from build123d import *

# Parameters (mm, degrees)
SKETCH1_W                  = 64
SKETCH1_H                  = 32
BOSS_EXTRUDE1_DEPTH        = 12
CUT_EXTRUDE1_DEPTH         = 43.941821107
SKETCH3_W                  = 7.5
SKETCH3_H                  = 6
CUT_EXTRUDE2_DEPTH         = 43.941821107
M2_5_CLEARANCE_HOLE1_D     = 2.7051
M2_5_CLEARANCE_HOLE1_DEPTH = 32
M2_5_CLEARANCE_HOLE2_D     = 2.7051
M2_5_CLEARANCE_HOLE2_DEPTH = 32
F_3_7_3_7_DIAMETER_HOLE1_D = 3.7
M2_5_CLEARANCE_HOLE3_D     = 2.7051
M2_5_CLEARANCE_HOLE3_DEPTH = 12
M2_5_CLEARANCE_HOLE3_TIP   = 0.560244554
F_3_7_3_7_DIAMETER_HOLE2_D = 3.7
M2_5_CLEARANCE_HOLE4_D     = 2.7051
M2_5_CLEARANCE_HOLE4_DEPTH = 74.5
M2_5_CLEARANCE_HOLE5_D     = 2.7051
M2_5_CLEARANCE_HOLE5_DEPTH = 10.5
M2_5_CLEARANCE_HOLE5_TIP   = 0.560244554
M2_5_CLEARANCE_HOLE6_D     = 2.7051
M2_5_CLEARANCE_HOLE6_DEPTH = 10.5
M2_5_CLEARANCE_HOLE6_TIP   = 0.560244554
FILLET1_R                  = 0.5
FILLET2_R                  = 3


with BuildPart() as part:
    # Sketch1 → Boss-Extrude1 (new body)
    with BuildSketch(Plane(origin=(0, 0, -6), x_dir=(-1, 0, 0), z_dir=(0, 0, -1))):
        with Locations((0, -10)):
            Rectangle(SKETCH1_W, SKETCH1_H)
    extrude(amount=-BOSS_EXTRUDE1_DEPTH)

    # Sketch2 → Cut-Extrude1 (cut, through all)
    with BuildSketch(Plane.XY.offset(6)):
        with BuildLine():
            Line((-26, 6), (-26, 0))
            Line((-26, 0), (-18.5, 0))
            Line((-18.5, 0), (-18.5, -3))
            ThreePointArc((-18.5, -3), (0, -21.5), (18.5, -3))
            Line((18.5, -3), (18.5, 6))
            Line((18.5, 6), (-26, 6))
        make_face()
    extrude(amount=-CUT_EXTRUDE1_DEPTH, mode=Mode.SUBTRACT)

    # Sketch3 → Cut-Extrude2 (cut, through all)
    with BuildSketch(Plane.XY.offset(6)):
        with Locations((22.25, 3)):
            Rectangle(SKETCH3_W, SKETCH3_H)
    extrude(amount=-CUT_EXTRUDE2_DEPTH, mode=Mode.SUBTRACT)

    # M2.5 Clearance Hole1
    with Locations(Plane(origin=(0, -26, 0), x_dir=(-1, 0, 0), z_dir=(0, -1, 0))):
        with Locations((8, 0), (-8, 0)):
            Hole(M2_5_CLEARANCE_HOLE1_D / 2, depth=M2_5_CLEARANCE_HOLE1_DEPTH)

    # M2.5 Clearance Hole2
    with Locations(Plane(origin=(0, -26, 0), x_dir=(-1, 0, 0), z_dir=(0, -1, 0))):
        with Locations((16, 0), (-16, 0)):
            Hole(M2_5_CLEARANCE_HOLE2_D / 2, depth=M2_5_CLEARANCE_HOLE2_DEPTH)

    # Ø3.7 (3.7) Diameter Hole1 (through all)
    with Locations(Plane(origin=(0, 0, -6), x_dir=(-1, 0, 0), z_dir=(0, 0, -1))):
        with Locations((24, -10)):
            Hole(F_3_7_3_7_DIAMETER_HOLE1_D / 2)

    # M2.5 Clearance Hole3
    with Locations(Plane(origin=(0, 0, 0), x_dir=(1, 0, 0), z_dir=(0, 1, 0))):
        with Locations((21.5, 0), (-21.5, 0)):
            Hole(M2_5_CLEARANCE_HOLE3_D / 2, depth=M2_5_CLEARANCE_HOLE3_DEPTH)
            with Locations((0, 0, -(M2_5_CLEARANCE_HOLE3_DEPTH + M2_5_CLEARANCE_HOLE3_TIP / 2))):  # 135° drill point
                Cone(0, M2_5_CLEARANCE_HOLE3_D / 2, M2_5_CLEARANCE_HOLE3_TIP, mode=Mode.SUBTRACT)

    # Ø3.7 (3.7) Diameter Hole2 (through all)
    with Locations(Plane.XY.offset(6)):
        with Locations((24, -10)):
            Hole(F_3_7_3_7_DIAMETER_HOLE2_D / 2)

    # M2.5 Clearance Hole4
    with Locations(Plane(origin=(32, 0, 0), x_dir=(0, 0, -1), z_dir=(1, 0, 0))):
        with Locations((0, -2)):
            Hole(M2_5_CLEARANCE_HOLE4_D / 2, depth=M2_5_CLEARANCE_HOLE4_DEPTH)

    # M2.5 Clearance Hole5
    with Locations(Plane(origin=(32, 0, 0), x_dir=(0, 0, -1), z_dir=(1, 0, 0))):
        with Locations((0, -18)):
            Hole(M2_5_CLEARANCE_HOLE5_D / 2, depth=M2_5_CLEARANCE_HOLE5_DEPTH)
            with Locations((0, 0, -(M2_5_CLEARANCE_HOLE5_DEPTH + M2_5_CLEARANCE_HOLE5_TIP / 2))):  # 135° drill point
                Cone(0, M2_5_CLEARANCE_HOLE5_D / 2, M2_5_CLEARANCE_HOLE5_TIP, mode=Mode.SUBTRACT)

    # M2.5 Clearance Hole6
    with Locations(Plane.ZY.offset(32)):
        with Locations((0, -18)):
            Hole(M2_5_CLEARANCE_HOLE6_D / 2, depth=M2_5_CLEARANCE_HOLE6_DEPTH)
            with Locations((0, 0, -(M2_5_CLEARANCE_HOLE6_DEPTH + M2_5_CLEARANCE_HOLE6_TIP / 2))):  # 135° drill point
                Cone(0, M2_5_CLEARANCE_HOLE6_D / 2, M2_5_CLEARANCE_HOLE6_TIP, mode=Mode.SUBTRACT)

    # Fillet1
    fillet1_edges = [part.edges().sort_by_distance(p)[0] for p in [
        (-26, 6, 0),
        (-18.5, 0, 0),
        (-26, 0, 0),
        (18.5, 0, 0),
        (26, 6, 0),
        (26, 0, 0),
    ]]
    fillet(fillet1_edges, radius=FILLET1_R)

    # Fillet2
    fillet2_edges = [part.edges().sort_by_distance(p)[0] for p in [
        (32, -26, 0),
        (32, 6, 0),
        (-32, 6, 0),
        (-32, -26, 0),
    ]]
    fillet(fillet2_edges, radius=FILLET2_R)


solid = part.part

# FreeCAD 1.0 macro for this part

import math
import FreeCAD as App
import Part
import Sketcher
from FreeCAD import Vector


def edges_at(feature, points):
    """Names of the edges that pass closest to the given points."""
    edges = feature.Shape.Edges
    near = lambda p: min(range(len(edges)), key=lambda i: edges[i].distToShape(Part.Vertex(*p))[0])
    return sorted({f"Edge{near(p) + 1}" for p in points})

doc = App.newDocument("Part")
params = doc.addObject("Spreadsheet::Sheet", "Params")
for row, (alias, value) in enumerate([
    ("sketch1_width", "64 mm"),
    ("sketch1_height", "32 mm"),
    ("pad1_length", "12 mm"),
    ("sketch2_radius", "18.5 mm"),
    ("sketch2_height", "6 mm"),
    ("sketch2_height2", "3 mm"),
    ("sketch2_width", "7.5 mm"),
    ("sketch3_height", "6 mm"),
    ("sketch3_width", "7.5 mm"),
    ("hole_diameter", "2.7051 mm"),
    ("hole_depth", "32 mm"),
    ("hole2_diameter", "2.7051 mm"),
    ("hole2_depth", "32 mm"),
    ("sketch6_diameter", "3.7 mm"),
    ("hole3_diameter", "3.7 mm"),
    ("hole4_diameter", "2.7051 mm"),
    ("hole4_depth", "12 mm"),
    ("sketch8_diameter", "3.7 mm"),
    ("hole5_diameter", "3.7 mm"),
    ("hole6_diameter", "2.7051 mm"),
    ("hole6_depth", "74.5 mm"),
    ("hole7_diameter", "2.7051 mm"),
    ("hole7_depth", "10.5 mm"),
    ("hole8_diameter", "2.7051 mm"),
    ("hole8_depth", "10.5 mm"),
    ("fillet_radius", "0.5 mm"),
    ("fillet2_radius", "3 mm"),
], start=1):
    params.set(f"A{row}", alias)
    params.set(f"B{row}", "=" + value)
    params.setAlias(f"B{row}", alias)

body = doc.addObject("PartDesign::Body", "Body")

# Sketch on XY plane
sketch1 = body.newObject("Sketcher::SketchObject", "Sketch")
sketch1.AttachmentSupport = (doc.getObject("XY_Plane"), [""])
sketch1.MapMode = "FlatFace"
sketch1.AttachmentOffset = App.Placement(Vector(0, 0, -6), App.Rotation())
sketch1.addGeometry(Part.LineSegment(Vector(32, 6, 0), Vector(32, -26, 0)), False)
sketch1.addGeometry(Part.LineSegment(Vector(32, -26, 0), Vector(-32, -26, 0)), False)
sketch1.addGeometry(Part.LineSegment(Vector(-32, -26, 0), Vector(-32, 6, 0)), False)
sketch1.addGeometry(Part.LineSegment(Vector(-32, 6, 0), Vector(32, 6, 0)), False)
sketch1.addConstraint(Sketcher.Constraint("Coincident", 0, 2, 1, 1))
sketch1.addConstraint(Sketcher.Constraint("Coincident", 1, 2, 2, 1))
sketch1.addConstraint(Sketcher.Constraint("Coincident", 2, 2, 3, 1))
sketch1.addConstraint(Sketcher.Constraint("Coincident", 3, 2, 0, 1))
sketch1.addConstraint(Sketcher.Constraint("Vertical", 0))
sketch1.addConstraint(Sketcher.Constraint("Horizontal", 1))
sketch1.addConstraint(Sketcher.Constraint("Vertical", 2))
sketch1.addConstraint(Sketcher.Constraint("Horizontal", 3))
sketch1.addConstraint(Sketcher.Constraint("DistanceX", 1, 2, 1, 1, 64.0))
sketch1.addConstraint(Sketcher.Constraint("DistanceY", 0, 2, 0, 1, 32.0))
sketch1.addConstraint(Sketcher.Constraint("DistanceX", -1, 1, 0, 2, 32.0))
sketch1.addConstraint(Sketcher.Constraint("DistanceY", 0, 2, -1, 1, 26.0))
sketch1.setExpression("Constraints[8]", "Params.sketch1_width")
sketch1.setExpression("Constraints[9]", "Params.sketch1_height")
pad1 = body.newObject("PartDesign::Pad", "Pad")
pad1.Profile = sketch1
pad1.setExpression("Length", "Params.pad1_length")

# Sketch on XY plane
sketch2 = body.newObject("Sketcher::SketchObject", "Sketch001")
sketch2.AttachmentSupport = (doc.getObject("XY_Plane"), [""])
sketch2.MapMode = "FlatFace"
sketch2.AttachmentOffset = App.Placement(Vector(0, 0, 6), App.Rotation())
sketch2.addGeometry(Part.LineSegment(Vector(-26, 6, 0), Vector(-26, 0, 0)), False)
sketch2.addGeometry(Part.LineSegment(Vector(-26, 0, 0), Vector(-18.5, 0, 0)), False)
sketch2.addGeometry(Part.LineSegment(Vector(-18.5, 0, 0), Vector(-18.5, -3, 0)), False)
sketch2.addGeometry(Part.ArcOfCircle(Part.Circle(Vector(0, -3, 0), Vector(0, 0, 1), 18.5), math.radians(180), math.radians(360)), False)
sketch2.addGeometry(Part.LineSegment(Vector(18.5, -3, 0), Vector(18.5, 6, 0)), False)
sketch2.addGeometry(Part.LineSegment(Vector(18.5, 6, 0), Vector(-26, 6, 0)), False)
sketch2.addConstraint(Sketcher.Constraint("Coincident", 0, 2, 1, 1))
sketch2.addConstraint(Sketcher.Constraint("Coincident", 1, 2, 2, 1))
sketch2.addConstraint(Sketcher.Constraint("Tangent", 2, 2, 3, 1))
sketch2.addConstraint(Sketcher.Constraint("Tangent", 3, 2, 4, 1))
sketch2.addConstraint(Sketcher.Constraint("Coincident", 4, 2, 5, 1))
sketch2.addConstraint(Sketcher.Constraint("Coincident", 5, 2, 0, 1))
sketch2.addConstraint(Sketcher.Constraint("Vertical", 0))
sketch2.addConstraint(Sketcher.Constraint("Horizontal", 1))
sketch2.addConstraint(Sketcher.Constraint("Vertical", 2))
sketch2.addConstraint(Sketcher.Constraint("Vertical", 4))
sketch2.addConstraint(Sketcher.Constraint("Horizontal", 5))
sketch2.addConstraint(Sketcher.Constraint("PointOnObject", 3, 3, -2))
sketch2.addConstraint(Sketcher.Constraint("PointOnObject", 0, 2, -1))
sketch2.addConstraint(Sketcher.Constraint("Radius", 3, 18.5))
sketch2.addConstraint(Sketcher.Constraint("DistanceY", 0, 2, 0, 1, 6.0))
sketch2.addConstraint(Sketcher.Constraint("DistanceY", 2, 2, 2, 1, 3.0))
sketch2.addConstraint(Sketcher.Constraint("DistanceX", 1, 1, 1, 2, 7.5))
sketch2.setExpression("Constraints[13]", "Params.sketch2_radius")
sketch2.setExpression("Constraints[14]", "Params.sketch2_height")
sketch2.setExpression("Constraints[15]", "Params.sketch2_height2")
sketch2.setExpression("Constraints[16]", "Params.sketch2_width")
pocket1 = body.newObject("PartDesign::Pocket", "Pocket")
pocket1.Profile = sketch2
pocket1.Type = "ThroughAll"

# Sketch on XY plane
sketch3 = body.newObject("Sketcher::SketchObject", "Sketch002")
sketch3.AttachmentSupport = (doc.getObject("XY_Plane"), [""])
sketch3.MapMode = "FlatFace"
sketch3.AttachmentOffset = App.Placement(Vector(0, 0, 6), App.Rotation())
sketch3.addGeometry(Part.LineSegment(Vector(18, 6, 0), Vector(18, 0, 0)), False)
sketch3.addGeometry(Part.LineSegment(Vector(18, 0, 0), Vector(26, 0, 0)), False)
sketch3.addGeometry(Part.LineSegment(Vector(26, 0, 0), Vector(26, 6, 0)), False)
sketch3.addGeometry(Part.LineSegment(Vector(26, 6, 0), Vector(18, 6, 0)), False)
sketch3.addConstraint(Sketcher.Constraint("Coincident", 0, 2, 1, 1))
sketch3.addConstraint(Sketcher.Constraint("Coincident", 1, 2, 2, 1))
sketch3.addConstraint(Sketcher.Constraint("Coincident", 2, 2, 3, 1))
sketch3.addConstraint(Sketcher.Constraint("Coincident", 3, 2, 0, 1))
sketch3.addConstraint(Sketcher.Constraint("Vertical", 0))
sketch3.addConstraint(Sketcher.Constraint("Horizontal", 1))
sketch3.addConstraint(Sketcher.Constraint("Vertical", 2))
sketch3.addConstraint(Sketcher.Constraint("Horizontal", 3))
sketch3.addConstraint(Sketcher.Constraint("PointOnObject", 0, 2, -1))
sketch3.addConstraint(Sketcher.Constraint("DistanceY", 0, 2, 0, 1, 6.0))
sketch3.addConstraint(Sketcher.Constraint("DistanceX", 1, 1, 1, 2, 7.5))
sketch3.addConstraint(Sketcher.Constraint("DistanceX", -1, 1, 1, 2, 26.0))
sketch3.setExpression("Constraints[9]", "Params.sketch3_height")
sketch3.setExpression("Constraints[10]", "Params.sketch3_width")
pocket2 = body.newObject("PartDesign::Pocket", "Pocket001")
pocket2.Profile = sketch3
pocket2.Type = "ThroughAll"

# Sketch on XZ plane
sketch4 = body.newObject("Sketcher::SketchObject", "Sketch003")
sketch4.AttachmentSupport = (doc.getObject("XZ_Plane"), [""])
sketch4.MapMode = "FlatFace"
sketch4.AttachmentOffset = App.Placement(Vector(0, 0, 26), App.Rotation())
sketch4.addGeometry(Part.Circle(Vector(-8, 0, 0), Vector(0, 0, 1), 1.4), False)
sketch4.addGeometry(Part.Circle(Vector(8, 0, 0), Vector(0, 0, 1), 1.4), False)
sketch4.addConstraint(Sketcher.Constraint("Equal", 0, 1))
sketch4.addConstraint(Sketcher.Constraint("Symmetric", 0, 3, 1, 3, -1, 1))
sketch4.addConstraint(Sketcher.Constraint("PointOnObject", 0, 3, -1))
sketch4.addConstraint(Sketcher.Constraint("DistanceX", 0, 3, -1, 1, 8.0))
sketch4.addConstraint(Sketcher.Constraint("Diameter", 0, 2.7051))
doc.recompute()
hole = body.newObject("PartDesign::Hole", "Hole")
hole.Profile = sketch4
hole.ThreadType = "None"
hole.setExpression("Diameter", "Params.hole_diameter")
hole.DepthType = "Dimension"
hole.setExpression("Depth", "Params.hole_depth")
hole.DrillPoint = "Flat"

# Sketch on XZ plane
sketch5 = body.newObject("Sketcher::SketchObject", "Sketch004")
sketch5.AttachmentSupport = (doc.getObject("XZ_Plane"), [""])
sketch5.MapMode = "FlatFace"
sketch5.AttachmentOffset = App.Placement(Vector(0, 0, 26), App.Rotation())
sketch5.addGeometry(Part.Circle(Vector(-16, 0, 0), Vector(0, 0, 1), 1.4), False)
sketch5.addGeometry(Part.Circle(Vector(16, 0, 0), Vector(0, 0, 1), 1.4), False)
sketch5.addConstraint(Sketcher.Constraint("Equal", 0, 1))
sketch5.addConstraint(Sketcher.Constraint("Symmetric", 0, 3, 1, 3, -1, 1))
sketch5.addConstraint(Sketcher.Constraint("PointOnObject", 0, 3, -1))
sketch5.addConstraint(Sketcher.Constraint("DistanceX", 0, 3, -1, 1, 16.0))
sketch5.addConstraint(Sketcher.Constraint("Diameter", 0, 2.7051))
doc.recompute()
hole2 = body.newObject("PartDesign::Hole", "Hole001")
hole2.Profile = sketch5
hole2.ThreadType = "None"
hole2.setExpression("Diameter", "Params.hole2_diameter")
hole2.DepthType = "Dimension"
hole2.setExpression("Depth", "Params.hole2_depth")
hole2.DrillPoint = "Flat"

# Sketch on XY plane
sketch6 = body.newObject("Sketcher::SketchObject", "Sketch005")
sketch6.AttachmentSupport = (doc.getObject("XY_Plane"), [""])
sketch6.MapMode = "FlatFace"
sketch6.AttachmentOffset = App.Placement(Vector(0, 0, -6), App.Rotation())
sketch6.addGeometry(Part.Circle(Vector(-24, -10, 0), Vector(0, 0, 1), 1.9), False)
sketch6.addConstraint(Sketcher.Constraint("Diameter", 0, 3.7))
sketch6.addConstraint(Sketcher.Constraint("DistanceX", 0, 3, -1, 1, 24.0))
sketch6.addConstraint(Sketcher.Constraint("DistanceY", 0, 3, -1, 1, 10.0))
sketch6.setExpression("Constraints[0]", "Params.sketch6_diameter")
doc.recompute()
hole3 = body.newObject("PartDesign::Hole", "Hole002")
hole3.Profile = sketch6
hole3.ThreadType = "None"
hole3.setExpression("Diameter", "Params.hole3_diameter")
hole3.DepthType = "ThroughAll"
hole3.Reversed = True

# Sketch on XZ plane
sketch7 = body.newObject("Sketcher::SketchObject", "Sketch006")
sketch7.AttachmentSupport = (doc.getObject("XZ_Plane"), [""])
sketch7.MapMode = "FlatFace"
sketch7.addGeometry(Part.Circle(Vector(21.5, 0, 0), Vector(0, 0, 1), 1.4), False)
sketch7.addGeometry(Part.Circle(Vector(-21.5, 0, 0), Vector(0, 0, 1), 1.4), False)
sketch7.addConstraint(Sketcher.Constraint("Equal", 0, 1))
sketch7.addConstraint(Sketcher.Constraint("Symmetric", 0, 3, 1, 3, -1, 1))
sketch7.addConstraint(Sketcher.Constraint("PointOnObject", 0, 3, -1))
sketch7.addConstraint(Sketcher.Constraint("DistanceX", 1, 3, 0, 3, 43.0))
sketch7.addConstraint(Sketcher.Constraint("Diameter", 0, 2.7051))
doc.recompute()
hole4 = body.newObject("PartDesign::Hole", "Hole003")
hole4.Profile = sketch7
hole4.ThreadType = "None"
hole4.setExpression("Diameter", "Params.hole4_diameter")
hole4.DepthType = "Dimension"
hole4.setExpression("Depth", "Params.hole4_depth")
hole4.DrillPoint = "Angled"
hole4.DrillPointAngle = 135
hole4.Reversed = True

# Sketch on XY plane
sketch8 = body.newObject("Sketcher::SketchObject", "Sketch007")
sketch8.AttachmentSupport = (doc.getObject("XY_Plane"), [""])
sketch8.MapMode = "FlatFace"
sketch8.AttachmentOffset = App.Placement(Vector(0, 0, 6), App.Rotation())
sketch8.addGeometry(Part.Circle(Vector(24, -10, 0), Vector(0, 0, 1), 1.9), False)
sketch8.addConstraint(Sketcher.Constraint("Diameter", 0, 3.7))
sketch8.addConstraint(Sketcher.Constraint("DistanceX", -1, 1, 0, 3, 24.0))
sketch8.addConstraint(Sketcher.Constraint("DistanceY", 0, 3, -1, 1, 10.0))
sketch8.setExpression("Constraints[0]", "Params.sketch8_diameter")
doc.recompute()
hole5 = body.newObject("PartDesign::Hole", "Hole004")
hole5.Profile = sketch8
hole5.ThreadType = "None"
hole5.setExpression("Diameter", "Params.hole5_diameter")
hole5.DepthType = "ThroughAll"

# Sketch on YZ plane
sketch9 = body.newObject("Sketcher::SketchObject", "Sketch008")
sketch9.AttachmentSupport = (doc.getObject("YZ_Plane"), [""])
sketch9.MapMode = "FlatFace"
sketch9.AttachmentOffset = App.Placement(Vector(0, 0, 32), App.Rotation())
sketch9.addGeometry(Part.Circle(Vector(-2, 0, 0), Vector(0, 0, 1), 1.4), False)
sketch9.addConstraint(Sketcher.Constraint("PointOnObject", 0, 3, -1))
sketch9.addConstraint(Sketcher.Constraint("DistanceX", 0, 3, -1, 1, 2.0))
sketch9.addConstraint(Sketcher.Constraint("Diameter", 0, 2.7051))
doc.recompute()
hole6 = body.newObject("PartDesign::Hole", "Hole005")
hole6.Profile = sketch9
hole6.ThreadType = "None"
hole6.setExpression("Diameter", "Params.hole6_diameter")
hole6.DepthType = "Dimension"
hole6.setExpression("Depth", "Params.hole6_depth")
hole6.DrillPoint = "Flat"

# Sketch on YZ plane
sketch10 = body.newObject("Sketcher::SketchObject", "Sketch009")
sketch10.AttachmentSupport = (doc.getObject("YZ_Plane"), [""])
sketch10.MapMode = "FlatFace"
sketch10.AttachmentOffset = App.Placement(Vector(0, 0, 32), App.Rotation())
sketch10.addGeometry(Part.Circle(Vector(-18, 0, 0), Vector(0, 0, 1), 1.4), False)
sketch10.addConstraint(Sketcher.Constraint("PointOnObject", 0, 3, -1))
sketch10.addConstraint(Sketcher.Constraint("DistanceX", 0, 3, -1, 1, 18.0))
sketch10.addConstraint(Sketcher.Constraint("Diameter", 0, 2.7051))
doc.recompute()
hole7 = body.newObject("PartDesign::Hole", "Hole006")
hole7.Profile = sketch10
hole7.ThreadType = "None"
hole7.setExpression("Diameter", "Params.hole7_diameter")
hole7.DepthType = "Dimension"
hole7.setExpression("Depth", "Params.hole7_depth")
hole7.DrillPoint = "Angled"
hole7.DrillPointAngle = 135

# Sketch on YZ plane
sketch11 = body.newObject("Sketcher::SketchObject", "Sketch010")
sketch11.AttachmentSupport = (doc.getObject("YZ_Plane"), [""])
sketch11.MapMode = "FlatFace"
sketch11.AttachmentOffset = App.Placement(Vector(0, 0, -32), App.Rotation())
sketch11.addGeometry(Part.Circle(Vector(-18, 0, 0), Vector(0, 0, 1), 1.4), False)
sketch11.addConstraint(Sketcher.Constraint("PointOnObject", 0, 3, -1))
sketch11.addConstraint(Sketcher.Constraint("DistanceX", 0, 3, -1, 1, 18.0))
sketch11.addConstraint(Sketcher.Constraint("Diameter", 0, 2.7051))
doc.recompute()
hole8 = body.newObject("PartDesign::Hole", "Hole007")
hole8.Profile = sketch11
hole8.ThreadType = "None"
hole8.setExpression("Diameter", "Params.hole8_diameter")
hole8.DepthType = "Dimension"
hole8.setExpression("Depth", "Params.hole8_depth")
hole8.DrillPoint = "Angled"
hole8.DrillPointAngle = 135
hole8.Reversed = True
doc.recompute()

fillet = body.newObject("PartDesign::Fillet", "Fillet")
fillet.Base = (hole8, edges_at(hole8, [
    (-26, 6, 0),
    (-18.5, 0, 0),
    (-26, 0, 0),
    (18.5, 0, 0),
    (26, 6, 0),
    (26, 0, 0),
]))
fillet.setExpression("Radius", "Params.fillet_radius")
doc.recompute()

fillet2 = body.newObject("PartDesign::Fillet", "Fillet001")
fillet2.Base = (fillet, edges_at(fillet, [
    (32, -26, 0),
    (32, 6, 0),
    (-32, 6, 0),
    (-32, -26, 0),
]))
fillet2.setExpression("Radius", "Params.fillet2_radius")

doc.recompute()
